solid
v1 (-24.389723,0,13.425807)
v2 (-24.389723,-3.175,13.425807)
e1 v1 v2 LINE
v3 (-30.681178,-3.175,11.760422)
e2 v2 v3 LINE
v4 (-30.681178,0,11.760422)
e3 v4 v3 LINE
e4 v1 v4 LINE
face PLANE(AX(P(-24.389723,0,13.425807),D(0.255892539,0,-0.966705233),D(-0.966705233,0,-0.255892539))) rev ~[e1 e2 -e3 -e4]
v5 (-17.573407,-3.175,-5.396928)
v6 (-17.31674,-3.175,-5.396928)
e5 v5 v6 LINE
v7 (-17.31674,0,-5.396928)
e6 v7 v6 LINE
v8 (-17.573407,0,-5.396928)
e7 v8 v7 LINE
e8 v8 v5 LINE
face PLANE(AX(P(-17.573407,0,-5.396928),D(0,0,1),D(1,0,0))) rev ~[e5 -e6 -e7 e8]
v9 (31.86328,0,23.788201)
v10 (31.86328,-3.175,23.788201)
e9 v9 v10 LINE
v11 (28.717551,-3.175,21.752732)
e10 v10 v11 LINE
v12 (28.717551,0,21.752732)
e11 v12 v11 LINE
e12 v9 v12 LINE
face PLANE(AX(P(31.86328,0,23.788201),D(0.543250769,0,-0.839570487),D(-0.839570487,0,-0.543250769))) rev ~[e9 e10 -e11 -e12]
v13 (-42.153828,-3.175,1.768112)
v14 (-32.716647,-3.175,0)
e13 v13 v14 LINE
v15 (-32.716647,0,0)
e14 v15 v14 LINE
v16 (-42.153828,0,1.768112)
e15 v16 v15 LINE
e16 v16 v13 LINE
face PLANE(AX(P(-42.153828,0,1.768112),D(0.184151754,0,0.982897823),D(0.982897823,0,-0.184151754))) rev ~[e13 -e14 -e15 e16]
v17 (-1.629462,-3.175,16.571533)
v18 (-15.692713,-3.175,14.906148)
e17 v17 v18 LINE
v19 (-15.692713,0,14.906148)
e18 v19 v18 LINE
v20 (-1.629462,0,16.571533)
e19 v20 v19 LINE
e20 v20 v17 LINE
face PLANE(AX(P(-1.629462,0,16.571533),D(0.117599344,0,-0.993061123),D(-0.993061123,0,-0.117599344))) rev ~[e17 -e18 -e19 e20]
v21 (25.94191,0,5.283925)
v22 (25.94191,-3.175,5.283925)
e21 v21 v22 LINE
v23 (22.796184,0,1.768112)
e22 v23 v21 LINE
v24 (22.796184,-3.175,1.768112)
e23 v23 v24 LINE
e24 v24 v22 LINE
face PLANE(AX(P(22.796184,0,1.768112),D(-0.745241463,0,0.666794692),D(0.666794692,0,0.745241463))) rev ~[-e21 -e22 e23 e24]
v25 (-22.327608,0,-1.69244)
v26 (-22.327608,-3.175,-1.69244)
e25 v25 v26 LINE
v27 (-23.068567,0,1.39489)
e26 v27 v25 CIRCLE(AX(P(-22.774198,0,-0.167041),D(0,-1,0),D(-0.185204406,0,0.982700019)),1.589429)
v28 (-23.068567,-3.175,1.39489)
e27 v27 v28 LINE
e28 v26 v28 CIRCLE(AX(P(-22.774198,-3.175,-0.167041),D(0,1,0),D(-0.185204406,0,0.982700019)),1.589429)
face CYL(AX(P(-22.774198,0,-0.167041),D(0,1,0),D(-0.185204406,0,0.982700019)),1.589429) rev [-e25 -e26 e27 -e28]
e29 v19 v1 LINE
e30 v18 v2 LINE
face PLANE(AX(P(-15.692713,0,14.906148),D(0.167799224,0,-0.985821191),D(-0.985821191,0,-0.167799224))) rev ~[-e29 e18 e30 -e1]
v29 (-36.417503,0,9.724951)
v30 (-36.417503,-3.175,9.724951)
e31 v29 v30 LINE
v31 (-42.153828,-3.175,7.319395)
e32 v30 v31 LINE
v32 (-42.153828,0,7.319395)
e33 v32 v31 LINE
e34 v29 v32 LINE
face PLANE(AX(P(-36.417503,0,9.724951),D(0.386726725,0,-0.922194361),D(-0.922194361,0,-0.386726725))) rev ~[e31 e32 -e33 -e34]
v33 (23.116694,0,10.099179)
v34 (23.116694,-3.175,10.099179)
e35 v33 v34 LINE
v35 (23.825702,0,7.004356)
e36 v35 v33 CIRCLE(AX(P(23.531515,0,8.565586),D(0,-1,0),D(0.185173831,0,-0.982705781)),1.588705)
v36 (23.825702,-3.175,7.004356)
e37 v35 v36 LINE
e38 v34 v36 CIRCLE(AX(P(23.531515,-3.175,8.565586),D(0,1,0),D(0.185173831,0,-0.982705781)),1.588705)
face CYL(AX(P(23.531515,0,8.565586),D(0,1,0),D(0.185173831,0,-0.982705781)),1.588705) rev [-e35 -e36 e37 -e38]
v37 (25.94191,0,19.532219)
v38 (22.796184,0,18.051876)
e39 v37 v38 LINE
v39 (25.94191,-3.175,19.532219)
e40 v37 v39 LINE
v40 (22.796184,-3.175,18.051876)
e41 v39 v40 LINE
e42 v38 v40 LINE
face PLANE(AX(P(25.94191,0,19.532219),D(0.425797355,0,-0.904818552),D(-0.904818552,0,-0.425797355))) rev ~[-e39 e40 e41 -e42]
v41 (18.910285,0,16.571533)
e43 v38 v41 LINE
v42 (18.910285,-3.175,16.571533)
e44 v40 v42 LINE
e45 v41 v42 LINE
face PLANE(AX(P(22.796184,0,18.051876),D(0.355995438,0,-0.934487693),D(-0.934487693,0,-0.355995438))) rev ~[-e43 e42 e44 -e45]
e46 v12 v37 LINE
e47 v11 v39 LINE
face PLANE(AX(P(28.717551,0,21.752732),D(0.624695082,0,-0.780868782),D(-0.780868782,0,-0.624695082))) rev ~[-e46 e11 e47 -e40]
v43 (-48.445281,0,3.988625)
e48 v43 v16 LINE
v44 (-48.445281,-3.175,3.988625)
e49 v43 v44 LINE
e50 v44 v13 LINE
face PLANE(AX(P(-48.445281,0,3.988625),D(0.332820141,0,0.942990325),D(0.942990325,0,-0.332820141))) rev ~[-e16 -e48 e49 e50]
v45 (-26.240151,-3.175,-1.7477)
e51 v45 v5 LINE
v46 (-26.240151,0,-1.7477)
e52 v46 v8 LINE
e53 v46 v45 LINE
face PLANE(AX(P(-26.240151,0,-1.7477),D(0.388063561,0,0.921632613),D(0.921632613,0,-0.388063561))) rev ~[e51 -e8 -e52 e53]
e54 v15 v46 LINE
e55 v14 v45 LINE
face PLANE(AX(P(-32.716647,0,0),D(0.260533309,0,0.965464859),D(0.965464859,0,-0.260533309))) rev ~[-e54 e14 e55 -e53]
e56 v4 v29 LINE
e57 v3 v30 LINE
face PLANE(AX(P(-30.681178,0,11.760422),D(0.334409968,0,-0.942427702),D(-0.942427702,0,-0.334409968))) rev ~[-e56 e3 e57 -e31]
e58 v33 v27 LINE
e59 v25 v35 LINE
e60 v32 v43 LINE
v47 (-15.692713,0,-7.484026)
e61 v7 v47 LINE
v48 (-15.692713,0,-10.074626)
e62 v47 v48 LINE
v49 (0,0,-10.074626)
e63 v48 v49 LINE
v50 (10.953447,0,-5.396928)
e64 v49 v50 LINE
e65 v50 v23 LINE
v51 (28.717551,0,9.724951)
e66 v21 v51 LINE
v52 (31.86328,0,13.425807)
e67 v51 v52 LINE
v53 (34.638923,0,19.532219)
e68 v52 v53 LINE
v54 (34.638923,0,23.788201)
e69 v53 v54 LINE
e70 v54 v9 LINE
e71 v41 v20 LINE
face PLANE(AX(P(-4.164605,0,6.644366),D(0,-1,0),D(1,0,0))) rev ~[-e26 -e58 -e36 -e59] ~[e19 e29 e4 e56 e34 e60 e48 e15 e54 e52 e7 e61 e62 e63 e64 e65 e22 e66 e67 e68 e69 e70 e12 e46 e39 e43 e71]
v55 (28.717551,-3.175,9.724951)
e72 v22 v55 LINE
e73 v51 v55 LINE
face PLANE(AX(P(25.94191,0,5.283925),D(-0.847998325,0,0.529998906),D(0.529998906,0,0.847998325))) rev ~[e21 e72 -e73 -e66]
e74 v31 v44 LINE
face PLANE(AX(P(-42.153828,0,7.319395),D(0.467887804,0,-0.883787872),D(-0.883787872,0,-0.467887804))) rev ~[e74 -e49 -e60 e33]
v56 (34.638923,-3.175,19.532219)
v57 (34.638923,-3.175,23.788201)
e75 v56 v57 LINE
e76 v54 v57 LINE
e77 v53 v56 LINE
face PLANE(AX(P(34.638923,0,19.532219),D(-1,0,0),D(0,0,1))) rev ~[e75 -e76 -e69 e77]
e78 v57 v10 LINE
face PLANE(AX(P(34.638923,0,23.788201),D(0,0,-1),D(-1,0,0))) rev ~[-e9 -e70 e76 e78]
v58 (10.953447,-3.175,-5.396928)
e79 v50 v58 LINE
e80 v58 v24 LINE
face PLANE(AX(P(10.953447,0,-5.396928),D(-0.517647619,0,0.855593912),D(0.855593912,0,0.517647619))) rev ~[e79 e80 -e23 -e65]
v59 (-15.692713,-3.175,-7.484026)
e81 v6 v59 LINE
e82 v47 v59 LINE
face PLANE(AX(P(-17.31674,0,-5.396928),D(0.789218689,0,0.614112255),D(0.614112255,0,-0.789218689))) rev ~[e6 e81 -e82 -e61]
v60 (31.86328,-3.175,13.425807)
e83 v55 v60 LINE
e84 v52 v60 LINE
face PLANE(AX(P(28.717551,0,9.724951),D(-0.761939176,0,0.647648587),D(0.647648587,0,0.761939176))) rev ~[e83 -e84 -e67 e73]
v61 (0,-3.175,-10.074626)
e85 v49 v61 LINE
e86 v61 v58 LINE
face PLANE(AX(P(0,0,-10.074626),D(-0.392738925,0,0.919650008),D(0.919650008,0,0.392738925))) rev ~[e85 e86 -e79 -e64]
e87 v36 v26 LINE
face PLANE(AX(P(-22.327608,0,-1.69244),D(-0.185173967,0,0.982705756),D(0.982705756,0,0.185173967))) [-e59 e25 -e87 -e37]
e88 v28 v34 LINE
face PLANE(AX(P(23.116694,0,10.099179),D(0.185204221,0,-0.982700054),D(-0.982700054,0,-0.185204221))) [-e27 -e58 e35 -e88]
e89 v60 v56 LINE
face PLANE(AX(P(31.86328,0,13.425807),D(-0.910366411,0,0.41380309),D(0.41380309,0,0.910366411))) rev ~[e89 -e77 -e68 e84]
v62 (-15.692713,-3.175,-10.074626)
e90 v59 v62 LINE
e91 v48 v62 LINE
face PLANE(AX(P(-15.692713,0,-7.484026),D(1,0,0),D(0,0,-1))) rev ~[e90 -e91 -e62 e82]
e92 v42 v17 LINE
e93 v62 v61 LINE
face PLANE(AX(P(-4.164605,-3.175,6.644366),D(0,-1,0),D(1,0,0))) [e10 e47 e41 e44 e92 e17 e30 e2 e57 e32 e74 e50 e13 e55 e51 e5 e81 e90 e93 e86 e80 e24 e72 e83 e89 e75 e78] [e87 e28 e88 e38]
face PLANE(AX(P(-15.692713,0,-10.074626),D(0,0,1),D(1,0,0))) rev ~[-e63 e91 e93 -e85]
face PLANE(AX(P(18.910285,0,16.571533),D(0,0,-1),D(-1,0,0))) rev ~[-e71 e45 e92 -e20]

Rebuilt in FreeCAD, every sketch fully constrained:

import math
import FreeCAD as App
import Part
import Sketcher
from FreeCAD import Vector
Q = App.Units.Quantity


def add_polygon(sketch, points):
    """Adds a closed chain of lines whose ends are joined by coincident constraints."""
    first, n = sketch.GeometryCount, len(points)
    for a, b in zip(points, points[1:] + points[:1]):
        sketch.addGeometry(Part.LineSegment(App.Vector(*a, 0), App.Vector(*b, 0)), False)
    for i in range(n):
        sketch.addConstraint(Sketcher.Constraint("Coincident", first + i, 2, first + (i + 1) % n, 1))

doc = App.newDocument("Part")
body = doc.addObject("PartDesign::Body", "Body")

sketch1 = body.newObject("Sketcher::SketchObject", "Sketch")
sketch1.AttachmentSupport = (doc.getObject("XZ_Plane"), [""])
sketch1.MapMode = "FlatFace"
add_polygon(sketch1, [(-42.153828, 7.319395), (-48.445281, 3.988625), (-42.153828, 1.768112), (-32.716647, 0), (-26.240151, -1.7477), (-17.573407, -5.396928), (-17.31674, -5.396928), (-15.692713, -7.484026), (-15.692713, -10.074626), (0, -10.074626), (10.953447, -5.396928), (22.796184, 1.768112), (25.94191, 5.283925), (28.717551, 9.724951), (31.86328, 13.425807), (34.638923, 19.532219), (34.638923, 23.788201), (31.86328, 23.788201), (28.717551, 21.752732), (25.94191, 19.532219), (22.796184, 18.051876), (18.910285, 16.571533), (-1.629462, 16.571533), (-15.692713, 14.906148), (-24.389723, 13.425807), (-30.681178, 11.760422), (-36.417503, 9.724951)])
sketch1.addConstraint([
    Sketcher.Constraint("Horizontal", 5),
    Sketcher.Constraint("Vertical", 7),
    Sketcher.Constraint("Horizontal", 8),
    Sketcher.Constraint("Vertical", 15),
    Sketcher.Constraint("Horizontal", 16),
    Sketcher.Constraint("Horizontal", 21),
    Sketcher.Constraint("PointOnObject", 2, 2, -1),
    Sketcher.Constraint("PointOnObject", 8, 2, -2),
    Sketcher.Constraint("Horizontal", 5, 2, 9, 2),
    Sketcher.Constraint("Horizontal", 1, 2, 10, 2),
    Sketcher.Constraint("Horizontal", 14, 2, 18, 2),
    Sketcher.Constraint("Horizontal", 13, 2, 23, 2),
    Sketcher.Constraint("Horizontal", 12, 2, 25, 2),
    Sketcher.Constraint("Vertical", 13, 2, 16, 2),
    Sketcher.Constraint("Vertical", 12, 2, 17, 2),
    Sketcher.Constraint("Vertical", 11, 2, 18, 2),
    Sketcher.Constraint("Vertical", 10, 2, 19, 2),
    Sketcher.Constraint("Vertical", 7, 2, 22, 2),
    Sketcher.Constraint("Vertical", 1, 2, 26, 2),
    Sketcher.Constraint("DistanceY", 7, 2, 7, 1, 2.5906),
    Sketcher.Constraint("DistanceY", 9, 2, 21, 2, Q("0.8649 in")),
    Sketcher.Constraint("Distance", 26, 6.220299),
    Sketcher.Constraint("DistanceY", 15, 1, 15, 2, 4.255982),
    Sketcher.Constraint("DistanceY", 3, 2, -1, 1, 1.7477),
    Sketcher.Constraint("DistanceY", -1, 1, 15, 2, 23.788201),
    Sketcher.Constraint("DistanceY", 6, 2, 5, 2, 2.087098),
    Sketcher.Constraint("DistanceX", 20, 2, 19, 2, 3.885899),
    Sketcher.Constraint("DistanceY", 20, 2, 17, 2, 5.181199),
    Sketcher.Constraint("Distance", 1, 6.671811),
    Sketcher.Constraint("Distance", 6, 2.644512),
    Sketcher.Constraint("Distance", 9, 11.910452),
    Sketcher.Constraint("Distance", 10, 13.84154),
    Sketcher.Constraint("Distance", 12, 5.237069),
    Sketcher.Constraint("Distance", 17, 3.746831),
    Sketcher.Constraint("Distance", 20, 4.15832),
    Sketcher.Constraint("DistanceX", 5, 1, 5, 2, 0.256667),
    Sketcher.Constraint("DistanceX", 8, 1, 8, 2, 15.692713),
    Sketcher.Constraint("DistanceX", 16, 2, 16, 1, 2.775643),
    Sketcher.Constraint("DistanceX", 21, 2, 21, 1, 20.539747),
    Sketcher.Constraint("DistanceX", 0, 2, -1, 1, 48.445281),
    Sketcher.Constraint("DistanceY", -1, 1, 1, 2, 1.768112),
    Sketcher.Constraint("DistanceX", 3, 2, -1, 1, 26.240151),
    Sketcher.Constraint("DistanceX", -1, 1, 11, 2, 25.94191),
    Sketcher.Constraint("DistanceX", -1, 1, 12, 2, 28.717551),
    Sketcher.Constraint("DistanceY", -1, 1, 12, 2, 9.724951),
    Sketcher.Constraint("DistanceX", -1, 1, 13, 2, 31.86328),
    Sketcher.Constraint("DistanceX", 1, 2, 2, 2, 9.437181),
    Sketcher.Constraint("DistanceX", 2, 2, 4, 2, 15.14324),
    Sketcher.Constraint("DistanceY", 13, 2, 19, 2, 4.626069),
    Sketcher.Constraint("DistanceY", 3, 2, 22, 2, 16.653848),
    Sketcher.Constraint("DistanceX", 23, 2, 22, 2, 8.69701),
    Sketcher.Constraint("DistanceX", 2, 2, 24, 2, 2.035469),
    Sketcher.Constraint("DistanceY", 1, 2, 24, 2, 9.99231),
    Sketcher.Constraint("DistanceX", 25, 2, 23, 2, 12.02778),
])
pad1 = body.newObject("PartDesign::Pad", "Pad")
pad1.Profile = sketch1
pad1.Length = Q("0.125 in")

sketch2 = body.newObject("Sketcher::SketchObject", "Sketch001")
sketch2.AttachmentSupport = (doc.getObject("XZ_Plane"), [""])
sketch2.MapMode = "FlatFace"
sketch2.addGeometry([
    Part.LineSegment(Vector(23.116694, 10.099179, 0), Vector(-23.068567, 1.39489, 0)),
    Part.ArcOfCircle(Part.Circle(Vector(-22.774198, -0.167041, 0), Vector(0, 0, 1), 1.589429), math.radians(100.67305), math.radians(286.31841)),
    Part.LineSegment(Vector(-22.327608, -1.69244, 0), Vector(23.825702, 7.004356, 0)),
    Part.ArcOfCircle(Part.Circle(Vector(23.531515, 8.565586, 0), Vector(0, 0, 1), 1.588705), math.radians(-79.328733), math.radians(105.135731)),
], False)
sketch2.addConstraint([
    Sketcher.Constraint("Tangent", 0, 2, 1, 1),
    Sketcher.Constraint("Coincident", 1, 2, 2, 1),
    Sketcher.Constraint("Tangent", 2, 2, 3, 1),
    Sketcher.Constraint("Coincident", 3, 2, 0, 1),
    Sketcher.Constraint("Radius", 1, 1.589429),
    Sketcher.Constraint("Radius", 3, 1.588705),
    Sketcher.Constraint("DistanceX", -1, 1, 2, 2, 23.825702),
    Sketcher.Constraint("DistanceY", 1, 2, 1, 3, 1.525399),
    Sketcher.Constraint("DistanceX", 1, 3, 2, 2, 46.5999),
    Sketcher.Constraint("DistanceX", 1, 2, 3, 2, 45.444302),
    Sketcher.Constraint("Distance", 0, 46.99833),
    Sketcher.Constraint("DistanceY", 1, 3, -1, 1, 0.167041),
])
pocket1 = body.newObject("PartDesign::Pocket", "Pocket")
pocket1.Profile = sketch2
pocket1.Length = Q("0.36 in")
pocket1.Reversed = True

doc.recompute()
